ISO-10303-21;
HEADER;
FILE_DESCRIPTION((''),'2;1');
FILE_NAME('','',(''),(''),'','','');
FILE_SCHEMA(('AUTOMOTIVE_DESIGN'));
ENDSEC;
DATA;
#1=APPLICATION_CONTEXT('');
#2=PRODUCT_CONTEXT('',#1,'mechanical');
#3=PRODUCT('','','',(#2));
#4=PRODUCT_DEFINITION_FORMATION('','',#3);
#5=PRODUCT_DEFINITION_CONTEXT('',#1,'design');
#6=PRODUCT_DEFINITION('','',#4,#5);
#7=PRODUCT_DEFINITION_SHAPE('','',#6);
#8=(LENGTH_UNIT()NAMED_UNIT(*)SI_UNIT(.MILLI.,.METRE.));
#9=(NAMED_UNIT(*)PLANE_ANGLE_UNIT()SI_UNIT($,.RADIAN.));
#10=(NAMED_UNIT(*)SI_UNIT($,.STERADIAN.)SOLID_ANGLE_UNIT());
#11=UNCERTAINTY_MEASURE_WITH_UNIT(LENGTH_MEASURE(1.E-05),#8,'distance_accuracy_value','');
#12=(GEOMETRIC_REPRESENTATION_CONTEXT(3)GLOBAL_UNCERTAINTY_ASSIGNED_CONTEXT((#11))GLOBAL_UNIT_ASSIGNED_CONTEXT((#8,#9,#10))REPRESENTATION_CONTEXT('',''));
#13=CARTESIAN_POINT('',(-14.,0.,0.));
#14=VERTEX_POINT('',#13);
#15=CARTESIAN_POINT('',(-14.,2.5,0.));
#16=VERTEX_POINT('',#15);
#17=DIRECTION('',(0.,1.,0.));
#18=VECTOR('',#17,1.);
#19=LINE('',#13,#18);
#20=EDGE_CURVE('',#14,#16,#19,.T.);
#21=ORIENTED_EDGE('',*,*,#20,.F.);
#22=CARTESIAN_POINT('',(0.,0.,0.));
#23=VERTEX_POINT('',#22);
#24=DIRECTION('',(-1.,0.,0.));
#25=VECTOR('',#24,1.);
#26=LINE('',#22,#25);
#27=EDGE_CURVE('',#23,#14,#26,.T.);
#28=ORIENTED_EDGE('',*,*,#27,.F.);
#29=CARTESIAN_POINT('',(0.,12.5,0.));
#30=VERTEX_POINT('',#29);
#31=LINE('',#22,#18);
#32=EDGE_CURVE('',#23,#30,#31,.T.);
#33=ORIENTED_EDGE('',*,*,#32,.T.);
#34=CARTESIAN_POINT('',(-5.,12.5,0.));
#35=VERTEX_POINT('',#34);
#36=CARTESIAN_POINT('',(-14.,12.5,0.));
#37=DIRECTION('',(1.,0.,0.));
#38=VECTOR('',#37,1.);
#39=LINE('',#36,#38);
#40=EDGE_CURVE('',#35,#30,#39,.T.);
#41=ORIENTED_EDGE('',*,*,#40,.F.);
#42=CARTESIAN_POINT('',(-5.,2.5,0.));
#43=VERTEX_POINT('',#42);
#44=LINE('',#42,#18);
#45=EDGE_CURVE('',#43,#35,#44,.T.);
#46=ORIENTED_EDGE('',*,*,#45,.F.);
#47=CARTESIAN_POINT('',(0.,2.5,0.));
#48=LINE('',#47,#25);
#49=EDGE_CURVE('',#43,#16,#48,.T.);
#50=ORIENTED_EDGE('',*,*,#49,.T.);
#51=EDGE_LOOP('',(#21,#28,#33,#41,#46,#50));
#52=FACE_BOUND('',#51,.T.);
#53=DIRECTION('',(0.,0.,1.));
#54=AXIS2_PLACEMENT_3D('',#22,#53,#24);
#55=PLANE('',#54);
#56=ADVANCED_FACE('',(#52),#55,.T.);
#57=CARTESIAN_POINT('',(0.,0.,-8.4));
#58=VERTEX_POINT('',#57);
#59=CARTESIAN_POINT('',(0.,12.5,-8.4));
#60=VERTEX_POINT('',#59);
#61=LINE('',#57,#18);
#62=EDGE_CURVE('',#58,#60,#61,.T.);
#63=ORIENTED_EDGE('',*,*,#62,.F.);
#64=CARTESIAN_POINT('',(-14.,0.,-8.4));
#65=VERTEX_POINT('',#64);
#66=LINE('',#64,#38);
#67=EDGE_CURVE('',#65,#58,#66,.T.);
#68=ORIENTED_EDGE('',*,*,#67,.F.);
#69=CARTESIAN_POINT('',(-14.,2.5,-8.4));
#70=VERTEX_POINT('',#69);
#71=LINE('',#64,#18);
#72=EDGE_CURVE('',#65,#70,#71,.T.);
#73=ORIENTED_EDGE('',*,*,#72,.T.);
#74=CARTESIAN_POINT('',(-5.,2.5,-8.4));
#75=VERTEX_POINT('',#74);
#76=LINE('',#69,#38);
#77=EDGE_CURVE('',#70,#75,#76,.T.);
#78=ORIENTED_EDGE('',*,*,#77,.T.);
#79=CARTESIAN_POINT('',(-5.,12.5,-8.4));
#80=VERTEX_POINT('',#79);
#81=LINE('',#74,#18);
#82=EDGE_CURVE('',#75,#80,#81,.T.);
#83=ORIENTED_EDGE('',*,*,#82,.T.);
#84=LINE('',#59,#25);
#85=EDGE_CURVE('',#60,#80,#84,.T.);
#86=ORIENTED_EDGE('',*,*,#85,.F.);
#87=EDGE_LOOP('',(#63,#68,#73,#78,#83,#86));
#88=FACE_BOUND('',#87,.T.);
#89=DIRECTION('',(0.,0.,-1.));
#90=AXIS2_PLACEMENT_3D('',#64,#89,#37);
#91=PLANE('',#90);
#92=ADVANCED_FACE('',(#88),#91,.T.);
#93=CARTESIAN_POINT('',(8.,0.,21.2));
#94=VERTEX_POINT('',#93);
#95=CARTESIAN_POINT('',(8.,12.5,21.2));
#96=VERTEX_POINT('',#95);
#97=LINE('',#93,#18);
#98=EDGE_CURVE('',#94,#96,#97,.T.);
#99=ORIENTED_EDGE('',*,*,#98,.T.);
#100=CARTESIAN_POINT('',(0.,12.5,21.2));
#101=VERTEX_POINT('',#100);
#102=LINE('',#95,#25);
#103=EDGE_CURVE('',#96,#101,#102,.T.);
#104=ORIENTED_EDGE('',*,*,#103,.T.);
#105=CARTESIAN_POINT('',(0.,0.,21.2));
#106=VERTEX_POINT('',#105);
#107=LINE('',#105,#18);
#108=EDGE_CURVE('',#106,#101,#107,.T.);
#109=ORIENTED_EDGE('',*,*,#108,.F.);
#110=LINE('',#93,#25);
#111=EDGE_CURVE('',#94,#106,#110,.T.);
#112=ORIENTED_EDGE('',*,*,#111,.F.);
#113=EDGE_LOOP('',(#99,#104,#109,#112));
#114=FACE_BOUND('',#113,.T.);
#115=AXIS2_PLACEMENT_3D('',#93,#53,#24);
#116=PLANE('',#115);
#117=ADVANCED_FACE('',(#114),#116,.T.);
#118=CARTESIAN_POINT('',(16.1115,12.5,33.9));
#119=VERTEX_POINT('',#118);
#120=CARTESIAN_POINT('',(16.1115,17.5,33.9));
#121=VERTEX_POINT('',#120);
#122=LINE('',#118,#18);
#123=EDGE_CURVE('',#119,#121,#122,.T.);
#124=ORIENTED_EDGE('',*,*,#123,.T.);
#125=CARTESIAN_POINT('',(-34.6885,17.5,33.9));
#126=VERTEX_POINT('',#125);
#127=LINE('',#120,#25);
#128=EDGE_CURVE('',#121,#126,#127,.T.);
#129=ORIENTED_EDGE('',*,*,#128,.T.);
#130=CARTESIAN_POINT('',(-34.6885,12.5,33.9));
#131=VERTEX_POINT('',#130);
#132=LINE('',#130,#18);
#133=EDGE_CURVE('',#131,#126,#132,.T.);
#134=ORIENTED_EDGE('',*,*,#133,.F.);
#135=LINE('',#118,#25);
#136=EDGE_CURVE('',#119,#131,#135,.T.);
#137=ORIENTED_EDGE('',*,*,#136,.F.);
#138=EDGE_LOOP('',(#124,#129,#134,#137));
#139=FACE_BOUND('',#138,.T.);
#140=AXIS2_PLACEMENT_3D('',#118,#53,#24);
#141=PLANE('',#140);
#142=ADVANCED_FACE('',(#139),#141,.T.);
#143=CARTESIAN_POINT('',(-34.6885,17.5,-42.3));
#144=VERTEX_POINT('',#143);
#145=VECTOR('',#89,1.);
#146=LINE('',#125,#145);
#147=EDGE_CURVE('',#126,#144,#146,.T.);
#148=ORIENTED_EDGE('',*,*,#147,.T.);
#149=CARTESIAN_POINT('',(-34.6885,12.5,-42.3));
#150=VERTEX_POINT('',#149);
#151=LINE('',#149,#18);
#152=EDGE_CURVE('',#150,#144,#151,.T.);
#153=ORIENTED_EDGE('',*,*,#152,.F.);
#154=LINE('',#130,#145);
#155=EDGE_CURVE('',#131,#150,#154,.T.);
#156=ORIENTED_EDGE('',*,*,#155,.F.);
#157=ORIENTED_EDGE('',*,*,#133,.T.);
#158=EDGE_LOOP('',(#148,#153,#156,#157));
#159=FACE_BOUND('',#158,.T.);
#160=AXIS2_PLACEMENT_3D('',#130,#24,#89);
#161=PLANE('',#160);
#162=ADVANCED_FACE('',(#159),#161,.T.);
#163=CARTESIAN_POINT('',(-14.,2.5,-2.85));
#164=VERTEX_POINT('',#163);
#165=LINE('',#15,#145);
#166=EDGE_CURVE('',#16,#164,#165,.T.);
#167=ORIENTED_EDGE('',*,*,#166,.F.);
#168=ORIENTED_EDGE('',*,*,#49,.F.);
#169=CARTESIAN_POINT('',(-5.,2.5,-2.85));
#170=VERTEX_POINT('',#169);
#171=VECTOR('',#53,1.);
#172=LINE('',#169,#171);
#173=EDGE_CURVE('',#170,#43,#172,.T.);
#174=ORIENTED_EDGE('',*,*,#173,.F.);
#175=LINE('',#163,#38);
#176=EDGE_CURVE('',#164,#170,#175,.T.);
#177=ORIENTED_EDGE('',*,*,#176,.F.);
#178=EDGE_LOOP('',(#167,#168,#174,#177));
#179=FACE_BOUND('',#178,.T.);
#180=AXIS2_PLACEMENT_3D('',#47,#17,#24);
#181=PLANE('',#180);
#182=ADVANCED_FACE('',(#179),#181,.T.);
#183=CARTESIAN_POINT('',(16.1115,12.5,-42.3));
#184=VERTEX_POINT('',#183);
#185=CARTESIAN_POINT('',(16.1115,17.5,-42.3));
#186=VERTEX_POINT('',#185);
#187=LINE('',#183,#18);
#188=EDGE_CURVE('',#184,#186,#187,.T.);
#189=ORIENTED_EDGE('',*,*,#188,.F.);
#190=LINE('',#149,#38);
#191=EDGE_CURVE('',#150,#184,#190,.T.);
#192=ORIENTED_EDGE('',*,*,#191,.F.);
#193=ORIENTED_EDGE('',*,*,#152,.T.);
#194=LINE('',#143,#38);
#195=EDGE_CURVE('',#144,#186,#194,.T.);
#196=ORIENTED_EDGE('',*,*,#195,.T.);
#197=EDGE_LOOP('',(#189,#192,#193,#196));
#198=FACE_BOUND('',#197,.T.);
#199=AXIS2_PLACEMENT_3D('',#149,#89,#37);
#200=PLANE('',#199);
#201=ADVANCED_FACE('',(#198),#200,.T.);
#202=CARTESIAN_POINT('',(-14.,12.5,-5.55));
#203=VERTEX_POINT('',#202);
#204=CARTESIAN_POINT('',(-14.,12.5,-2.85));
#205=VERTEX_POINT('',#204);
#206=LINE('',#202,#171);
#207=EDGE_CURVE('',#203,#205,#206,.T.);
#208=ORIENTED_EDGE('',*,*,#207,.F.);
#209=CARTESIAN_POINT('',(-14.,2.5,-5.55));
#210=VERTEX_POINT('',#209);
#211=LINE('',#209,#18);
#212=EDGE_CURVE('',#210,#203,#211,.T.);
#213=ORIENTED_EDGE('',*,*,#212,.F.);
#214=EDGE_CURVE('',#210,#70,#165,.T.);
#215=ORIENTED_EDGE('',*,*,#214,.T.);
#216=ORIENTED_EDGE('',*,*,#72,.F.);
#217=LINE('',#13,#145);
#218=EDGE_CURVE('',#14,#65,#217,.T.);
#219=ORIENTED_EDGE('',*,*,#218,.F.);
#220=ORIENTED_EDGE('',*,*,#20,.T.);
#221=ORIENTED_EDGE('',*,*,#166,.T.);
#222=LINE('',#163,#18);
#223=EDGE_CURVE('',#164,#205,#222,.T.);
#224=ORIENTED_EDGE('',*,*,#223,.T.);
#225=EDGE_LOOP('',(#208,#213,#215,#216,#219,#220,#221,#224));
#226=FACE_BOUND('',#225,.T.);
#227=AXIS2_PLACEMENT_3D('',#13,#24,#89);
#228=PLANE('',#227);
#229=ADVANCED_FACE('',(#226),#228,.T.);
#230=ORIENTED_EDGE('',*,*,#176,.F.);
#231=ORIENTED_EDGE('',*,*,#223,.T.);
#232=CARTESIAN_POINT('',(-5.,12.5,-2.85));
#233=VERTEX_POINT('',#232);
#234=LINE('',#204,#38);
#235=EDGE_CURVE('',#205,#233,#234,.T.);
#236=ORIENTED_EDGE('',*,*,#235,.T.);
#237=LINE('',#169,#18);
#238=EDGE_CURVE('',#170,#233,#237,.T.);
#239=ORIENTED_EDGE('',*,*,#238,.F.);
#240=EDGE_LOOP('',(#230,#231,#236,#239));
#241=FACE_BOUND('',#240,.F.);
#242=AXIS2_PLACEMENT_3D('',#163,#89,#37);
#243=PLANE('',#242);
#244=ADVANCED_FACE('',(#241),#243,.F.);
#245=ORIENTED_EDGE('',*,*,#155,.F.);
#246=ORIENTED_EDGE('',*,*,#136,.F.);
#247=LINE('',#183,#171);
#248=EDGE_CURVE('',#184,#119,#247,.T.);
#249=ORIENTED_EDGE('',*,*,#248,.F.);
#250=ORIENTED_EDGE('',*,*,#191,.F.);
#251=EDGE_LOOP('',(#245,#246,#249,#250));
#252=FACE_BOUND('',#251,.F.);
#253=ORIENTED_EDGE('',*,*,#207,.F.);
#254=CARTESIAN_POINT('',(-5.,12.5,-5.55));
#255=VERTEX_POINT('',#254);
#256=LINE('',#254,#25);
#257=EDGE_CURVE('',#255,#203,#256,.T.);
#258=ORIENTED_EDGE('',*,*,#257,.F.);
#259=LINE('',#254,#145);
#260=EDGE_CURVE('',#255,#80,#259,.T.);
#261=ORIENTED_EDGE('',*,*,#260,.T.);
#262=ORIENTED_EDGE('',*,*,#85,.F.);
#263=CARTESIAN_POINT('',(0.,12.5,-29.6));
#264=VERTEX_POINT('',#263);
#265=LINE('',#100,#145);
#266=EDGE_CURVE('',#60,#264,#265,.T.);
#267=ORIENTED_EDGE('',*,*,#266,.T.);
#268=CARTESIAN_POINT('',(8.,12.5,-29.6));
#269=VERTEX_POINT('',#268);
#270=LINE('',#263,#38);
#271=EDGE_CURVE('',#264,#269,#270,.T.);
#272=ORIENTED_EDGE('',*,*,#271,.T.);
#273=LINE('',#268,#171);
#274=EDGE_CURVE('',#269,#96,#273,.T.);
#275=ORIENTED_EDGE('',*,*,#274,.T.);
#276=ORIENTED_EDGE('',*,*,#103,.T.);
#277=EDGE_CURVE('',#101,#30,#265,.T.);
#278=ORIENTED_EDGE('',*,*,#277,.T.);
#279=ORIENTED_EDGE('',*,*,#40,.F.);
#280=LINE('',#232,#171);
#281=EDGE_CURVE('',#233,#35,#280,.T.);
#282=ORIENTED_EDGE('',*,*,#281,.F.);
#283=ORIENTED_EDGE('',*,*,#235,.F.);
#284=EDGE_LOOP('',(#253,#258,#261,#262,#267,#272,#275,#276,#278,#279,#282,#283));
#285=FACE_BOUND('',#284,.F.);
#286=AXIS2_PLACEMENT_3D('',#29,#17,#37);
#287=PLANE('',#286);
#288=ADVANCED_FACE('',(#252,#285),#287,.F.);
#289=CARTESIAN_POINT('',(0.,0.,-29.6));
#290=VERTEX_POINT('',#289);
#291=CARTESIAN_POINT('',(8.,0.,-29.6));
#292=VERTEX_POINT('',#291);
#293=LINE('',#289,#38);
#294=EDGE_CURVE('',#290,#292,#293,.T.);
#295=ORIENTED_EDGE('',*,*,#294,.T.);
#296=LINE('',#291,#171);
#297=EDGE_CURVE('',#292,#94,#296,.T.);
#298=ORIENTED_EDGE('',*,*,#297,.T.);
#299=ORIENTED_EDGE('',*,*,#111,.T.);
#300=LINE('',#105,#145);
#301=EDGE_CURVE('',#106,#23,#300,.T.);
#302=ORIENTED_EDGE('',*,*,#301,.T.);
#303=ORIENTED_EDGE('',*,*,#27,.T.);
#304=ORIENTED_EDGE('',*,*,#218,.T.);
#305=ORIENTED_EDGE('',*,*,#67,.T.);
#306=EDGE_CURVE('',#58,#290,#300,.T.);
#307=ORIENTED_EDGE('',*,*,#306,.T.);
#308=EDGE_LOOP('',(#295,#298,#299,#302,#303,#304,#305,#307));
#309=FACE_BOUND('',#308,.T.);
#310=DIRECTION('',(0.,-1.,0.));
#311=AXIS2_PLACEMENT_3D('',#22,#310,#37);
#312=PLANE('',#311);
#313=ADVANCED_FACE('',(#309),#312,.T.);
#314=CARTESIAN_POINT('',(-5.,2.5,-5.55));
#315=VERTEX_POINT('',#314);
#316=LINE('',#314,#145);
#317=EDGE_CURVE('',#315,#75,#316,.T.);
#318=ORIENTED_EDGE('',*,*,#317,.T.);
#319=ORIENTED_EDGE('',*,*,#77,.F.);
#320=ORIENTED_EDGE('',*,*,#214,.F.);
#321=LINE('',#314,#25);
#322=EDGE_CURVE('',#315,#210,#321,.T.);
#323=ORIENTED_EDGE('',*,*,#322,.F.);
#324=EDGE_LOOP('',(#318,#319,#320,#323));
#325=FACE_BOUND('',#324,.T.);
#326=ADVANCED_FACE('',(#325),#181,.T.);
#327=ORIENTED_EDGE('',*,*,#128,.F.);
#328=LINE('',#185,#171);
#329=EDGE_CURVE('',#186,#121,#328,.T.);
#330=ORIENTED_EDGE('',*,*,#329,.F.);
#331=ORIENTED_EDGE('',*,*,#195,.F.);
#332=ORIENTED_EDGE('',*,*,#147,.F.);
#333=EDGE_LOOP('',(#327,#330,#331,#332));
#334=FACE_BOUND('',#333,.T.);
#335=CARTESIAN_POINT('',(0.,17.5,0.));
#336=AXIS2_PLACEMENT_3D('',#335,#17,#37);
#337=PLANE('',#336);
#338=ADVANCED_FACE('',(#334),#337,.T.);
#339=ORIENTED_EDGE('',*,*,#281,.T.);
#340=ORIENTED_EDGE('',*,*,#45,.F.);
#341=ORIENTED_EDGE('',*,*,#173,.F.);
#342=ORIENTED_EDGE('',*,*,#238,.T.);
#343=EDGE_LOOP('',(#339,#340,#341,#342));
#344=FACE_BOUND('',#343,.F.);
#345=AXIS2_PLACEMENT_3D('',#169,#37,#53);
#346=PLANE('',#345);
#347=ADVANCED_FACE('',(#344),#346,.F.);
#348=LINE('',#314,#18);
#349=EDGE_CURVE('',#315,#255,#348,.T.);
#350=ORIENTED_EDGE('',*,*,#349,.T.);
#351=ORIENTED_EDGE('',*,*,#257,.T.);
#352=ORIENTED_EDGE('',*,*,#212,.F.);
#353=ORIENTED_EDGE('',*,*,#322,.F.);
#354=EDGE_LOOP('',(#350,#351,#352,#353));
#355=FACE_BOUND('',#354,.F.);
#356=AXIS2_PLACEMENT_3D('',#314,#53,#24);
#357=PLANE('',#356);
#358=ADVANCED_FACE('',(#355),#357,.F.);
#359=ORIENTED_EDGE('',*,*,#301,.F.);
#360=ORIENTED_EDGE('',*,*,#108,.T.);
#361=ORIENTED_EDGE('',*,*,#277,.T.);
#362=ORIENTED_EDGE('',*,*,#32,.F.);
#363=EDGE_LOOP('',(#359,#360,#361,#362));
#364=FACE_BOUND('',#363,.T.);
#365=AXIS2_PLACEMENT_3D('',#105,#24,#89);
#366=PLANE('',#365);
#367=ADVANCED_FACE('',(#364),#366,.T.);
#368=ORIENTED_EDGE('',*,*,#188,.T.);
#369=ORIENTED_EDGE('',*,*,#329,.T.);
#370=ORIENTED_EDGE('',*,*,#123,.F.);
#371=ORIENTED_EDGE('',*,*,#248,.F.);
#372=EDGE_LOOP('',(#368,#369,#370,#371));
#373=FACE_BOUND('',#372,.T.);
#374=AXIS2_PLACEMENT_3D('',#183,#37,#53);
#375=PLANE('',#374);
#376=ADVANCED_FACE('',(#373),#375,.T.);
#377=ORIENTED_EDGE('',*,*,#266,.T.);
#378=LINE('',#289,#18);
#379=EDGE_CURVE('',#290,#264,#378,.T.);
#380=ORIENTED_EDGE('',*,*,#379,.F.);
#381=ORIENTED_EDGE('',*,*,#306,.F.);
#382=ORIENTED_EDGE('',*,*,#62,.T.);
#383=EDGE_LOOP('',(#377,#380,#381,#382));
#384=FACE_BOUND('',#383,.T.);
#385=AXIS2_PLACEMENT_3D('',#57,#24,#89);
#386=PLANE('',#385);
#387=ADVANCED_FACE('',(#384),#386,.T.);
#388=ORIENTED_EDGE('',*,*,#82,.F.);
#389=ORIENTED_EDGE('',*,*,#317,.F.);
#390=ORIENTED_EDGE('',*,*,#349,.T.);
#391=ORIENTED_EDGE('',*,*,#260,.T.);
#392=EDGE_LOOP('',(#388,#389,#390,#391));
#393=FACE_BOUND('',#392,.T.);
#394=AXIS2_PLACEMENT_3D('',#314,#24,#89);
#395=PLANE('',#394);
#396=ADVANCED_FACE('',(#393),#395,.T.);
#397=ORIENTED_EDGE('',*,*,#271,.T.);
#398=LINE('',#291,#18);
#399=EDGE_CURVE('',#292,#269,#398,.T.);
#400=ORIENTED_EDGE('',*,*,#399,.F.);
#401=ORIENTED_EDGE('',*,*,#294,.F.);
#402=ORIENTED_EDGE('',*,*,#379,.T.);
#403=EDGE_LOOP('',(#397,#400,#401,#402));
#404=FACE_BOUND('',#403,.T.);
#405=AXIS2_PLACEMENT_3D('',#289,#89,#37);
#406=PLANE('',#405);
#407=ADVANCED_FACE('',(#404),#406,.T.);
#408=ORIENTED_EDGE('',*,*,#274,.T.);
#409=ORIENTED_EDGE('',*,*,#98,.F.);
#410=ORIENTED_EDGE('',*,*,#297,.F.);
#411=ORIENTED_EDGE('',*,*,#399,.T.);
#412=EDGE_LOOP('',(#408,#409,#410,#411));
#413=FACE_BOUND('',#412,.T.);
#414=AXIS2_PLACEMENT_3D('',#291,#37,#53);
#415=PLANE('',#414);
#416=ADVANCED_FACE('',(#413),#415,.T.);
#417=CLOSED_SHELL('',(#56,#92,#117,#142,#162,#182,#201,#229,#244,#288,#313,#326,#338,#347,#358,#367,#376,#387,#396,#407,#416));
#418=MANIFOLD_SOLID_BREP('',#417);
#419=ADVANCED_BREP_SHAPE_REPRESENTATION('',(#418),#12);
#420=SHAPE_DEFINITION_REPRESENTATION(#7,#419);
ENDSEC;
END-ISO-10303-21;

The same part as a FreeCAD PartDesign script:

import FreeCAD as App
import Part
import Sketcher
from FreeCAD import Vector


def add_polygon(sketch, points):
    """Adds a closed chain of lines whose ends are joined by coincident constraints."""
    first, n = sketch.GeometryCount, len(points)
    for a, b in zip(points, points[1:] + points[:1]):
        sketch.addGeometry(Part.LineSegment(App.Vector(*a, 0), App.Vector(*b, 0)), False)
    for i in range(n):
        sketch.addConstraint(Sketcher.Constraint("Coincident", first + i, 2, first + (i + 1) % n, 1))

doc = App.newDocument("Part")
body = doc.addObject("PartDesign::Body", "Body")

sketch1 = body.newObject("Sketcher::SketchObject", "Sketch")
sketch1.AttachmentSupport = (doc.getObject("XZ_Plane"), [""])
sketch1.MapMode = "FlatFace"
add_polygon(sketch1, [(-14, 0), (0, 0), (0, -8), (-14, -8)])
sketch1.addConstraint(Sketcher.Constraint("Horizontal", 0))
sketch1.addConstraint(Sketcher.Constraint("Vertical", 1))
sketch1.addConstraint(Sketcher.Constraint("Horizontal", 2))
sketch1.addConstraint(Sketcher.Constraint("Vertical", 3))
sketch1.addConstraint(Sketcher.Constraint("Coincident", 0, 2, -1, 1))
sketch1.addConstraint(Sketcher.Constraint("DistanceX", 0, 1, 0, 2, 14.0))
sketch1.addConstraint(Sketcher.Constraint("DistanceY", 1, 2, 1, 1, 8.4))
pad1 = body.newObject("PartDesign::Pad", "Pad")
pad1.Profile = sketch1
pad1.Length = 2.5
pad1.Reversed = True

sketch2 = body.newObject("Sketcher::SketchObject", "Sketch001")
sketch2.AttachmentSupport = (doc.getObject("XZ_Plane"), [""])
sketch2.MapMode = "FlatFace"
sketch2.AttachmentOffset = App.Placement(Vector(0, 0, -2.5), App.Rotation())
add_polygon(sketch2, [(-14, -5.5), (-14, -2.9), (-5, -2.9), (-5, 0), (0, 0), (0, -8.4), (-5, -8.4), (-5, -5.5)])
sketch2.addConstraint(Sketcher.Constraint("Vertical", 0))
sketch2.addConstraint(Sketcher.Constraint("Horizontal", 1))
sketch2.addConstraint(Sketcher.Constraint("Vertical", 2))
sketch2.addConstraint(Sketcher.Constraint("Horizontal", 3))
sketch2.addConstraint(Sketcher.Constraint("Vertical", 4))
sketch2.addConstraint(Sketcher.Constraint("Horizontal", 5))
sketch2.addConstraint(Sketcher.Constraint("Vertical", 6))
sketch2.addConstraint(Sketcher.Constraint("Horizontal", 7))
sketch2.addConstraint(Sketcher.Constraint("Coincident", 3, 2, -1, 1))
sketch2.addConstraint(Sketcher.Constraint("Vertical", 2, 2, 5, 2))
sketch2.addConstraint(Sketcher.Constraint("Equal", 2, 6))
sketch2.addConstraint(Sketcher.Constraint("DistanceX", 1, 1, 1, 2, 9.0))
sketch2.addConstraint(Sketcher.Constraint("DistanceX", 3, 1, 3, 2, 5.0))
sketch2.addConstraint(Sketcher.Constraint("DistanceY", 0, 1, 0, 2, 2.7))
sketch2.addConstraint(Sketcher.Constraint("DistanceY", 4, 2, 4, 1, 8.4))
pad2 = body.newObject("PartDesign::Pad", "Pad001")
pad2.Profile = sketch2
pad2.Length = 10
pad2.Reversed = True

sketch3 = body.newObject("Sketcher::SketchObject", "Sketch002")
sketch3.AttachmentSupport = (doc.getObject("XZ_Plane"), [""])
sketch3.MapMode = "FlatFace"
add_polygon(sketch3, [(0, 21), (0, -30), (8, -30), (8, 21)])
sketch3.addConstraint(Sketcher.Constraint("Vertical", 0))
sketch3.addConstraint(Sketcher.Constraint("Horizontal", 1))
sketch3.addConstraint(Sketcher.Constraint("Vertical", 2))
sketch3.addConstraint(Sketcher.Constraint("Horizontal", 3))
sketch3.addConstraint(Sketcher.Constraint("PointOnObject", 0, 2, -2))
sketch3.addConstraint(Sketcher.Constraint("DistanceX", 1, 1, 1, 2, 8.0))
sketch3.addConstraint(Sketcher.Constraint("DistanceY", 0, 2, 0, 1, 50.8))
sketch3.addConstraint(Sketcher.Constraint("DistanceY", 0, 2, -1, 1, 29.6))
pad3 = body.newObject("PartDesign::Pad", "Pad002")
pad3.Profile = sketch3
pad3.Length = 12.5
pad3.Reversed = True

sketch4 = body.newObject("Sketcher::SketchObject", "Sketch003")
sketch4.AttachmentSupport = (doc.getObject("XZ_Plane"), [""])
sketch4.MapMode = "FlatFace"
sketch4.AttachmentOffset = App.Placement(Vector(0, 0, -12.5), App.Rotation())
add_polygon(sketch4, [(-35, 34), (16, 34), (16, -42), (-35, -42)])
sketch4.addConstraint(Sketcher.Constraint("Horizontal", 0))
sketch4.addConstraint(Sketcher.Constraint("Vertical", 1))
sketch4.addConstraint(Sketcher.Constraint("Horizontal", 2))
sketch4.addConstraint(Sketcher.Constraint("Vertical", 3))
sketch4.addConstraint(Sketcher.Constraint("DistanceX", 0, 1, 0, 2, 50.8))
sketch4.addConstraint(Sketcher.Constraint("DistanceY", 1, 2, 1, 1, 76.2))
sketch4.addConstraint(Sketcher.Constraint("DistanceY", -1, 1, 0, 2, 33.9))
sketch4.addConstraint(Sketcher.Constraint("DistanceX", -1, 1, 0, 2, 16.1115))
pad4 = body.newObject("PartDesign::Pad", "Pad003")
pad4.Profile = sketch4
pad4.Length = 5
pad4.Reversed = True

doc.recompute()
